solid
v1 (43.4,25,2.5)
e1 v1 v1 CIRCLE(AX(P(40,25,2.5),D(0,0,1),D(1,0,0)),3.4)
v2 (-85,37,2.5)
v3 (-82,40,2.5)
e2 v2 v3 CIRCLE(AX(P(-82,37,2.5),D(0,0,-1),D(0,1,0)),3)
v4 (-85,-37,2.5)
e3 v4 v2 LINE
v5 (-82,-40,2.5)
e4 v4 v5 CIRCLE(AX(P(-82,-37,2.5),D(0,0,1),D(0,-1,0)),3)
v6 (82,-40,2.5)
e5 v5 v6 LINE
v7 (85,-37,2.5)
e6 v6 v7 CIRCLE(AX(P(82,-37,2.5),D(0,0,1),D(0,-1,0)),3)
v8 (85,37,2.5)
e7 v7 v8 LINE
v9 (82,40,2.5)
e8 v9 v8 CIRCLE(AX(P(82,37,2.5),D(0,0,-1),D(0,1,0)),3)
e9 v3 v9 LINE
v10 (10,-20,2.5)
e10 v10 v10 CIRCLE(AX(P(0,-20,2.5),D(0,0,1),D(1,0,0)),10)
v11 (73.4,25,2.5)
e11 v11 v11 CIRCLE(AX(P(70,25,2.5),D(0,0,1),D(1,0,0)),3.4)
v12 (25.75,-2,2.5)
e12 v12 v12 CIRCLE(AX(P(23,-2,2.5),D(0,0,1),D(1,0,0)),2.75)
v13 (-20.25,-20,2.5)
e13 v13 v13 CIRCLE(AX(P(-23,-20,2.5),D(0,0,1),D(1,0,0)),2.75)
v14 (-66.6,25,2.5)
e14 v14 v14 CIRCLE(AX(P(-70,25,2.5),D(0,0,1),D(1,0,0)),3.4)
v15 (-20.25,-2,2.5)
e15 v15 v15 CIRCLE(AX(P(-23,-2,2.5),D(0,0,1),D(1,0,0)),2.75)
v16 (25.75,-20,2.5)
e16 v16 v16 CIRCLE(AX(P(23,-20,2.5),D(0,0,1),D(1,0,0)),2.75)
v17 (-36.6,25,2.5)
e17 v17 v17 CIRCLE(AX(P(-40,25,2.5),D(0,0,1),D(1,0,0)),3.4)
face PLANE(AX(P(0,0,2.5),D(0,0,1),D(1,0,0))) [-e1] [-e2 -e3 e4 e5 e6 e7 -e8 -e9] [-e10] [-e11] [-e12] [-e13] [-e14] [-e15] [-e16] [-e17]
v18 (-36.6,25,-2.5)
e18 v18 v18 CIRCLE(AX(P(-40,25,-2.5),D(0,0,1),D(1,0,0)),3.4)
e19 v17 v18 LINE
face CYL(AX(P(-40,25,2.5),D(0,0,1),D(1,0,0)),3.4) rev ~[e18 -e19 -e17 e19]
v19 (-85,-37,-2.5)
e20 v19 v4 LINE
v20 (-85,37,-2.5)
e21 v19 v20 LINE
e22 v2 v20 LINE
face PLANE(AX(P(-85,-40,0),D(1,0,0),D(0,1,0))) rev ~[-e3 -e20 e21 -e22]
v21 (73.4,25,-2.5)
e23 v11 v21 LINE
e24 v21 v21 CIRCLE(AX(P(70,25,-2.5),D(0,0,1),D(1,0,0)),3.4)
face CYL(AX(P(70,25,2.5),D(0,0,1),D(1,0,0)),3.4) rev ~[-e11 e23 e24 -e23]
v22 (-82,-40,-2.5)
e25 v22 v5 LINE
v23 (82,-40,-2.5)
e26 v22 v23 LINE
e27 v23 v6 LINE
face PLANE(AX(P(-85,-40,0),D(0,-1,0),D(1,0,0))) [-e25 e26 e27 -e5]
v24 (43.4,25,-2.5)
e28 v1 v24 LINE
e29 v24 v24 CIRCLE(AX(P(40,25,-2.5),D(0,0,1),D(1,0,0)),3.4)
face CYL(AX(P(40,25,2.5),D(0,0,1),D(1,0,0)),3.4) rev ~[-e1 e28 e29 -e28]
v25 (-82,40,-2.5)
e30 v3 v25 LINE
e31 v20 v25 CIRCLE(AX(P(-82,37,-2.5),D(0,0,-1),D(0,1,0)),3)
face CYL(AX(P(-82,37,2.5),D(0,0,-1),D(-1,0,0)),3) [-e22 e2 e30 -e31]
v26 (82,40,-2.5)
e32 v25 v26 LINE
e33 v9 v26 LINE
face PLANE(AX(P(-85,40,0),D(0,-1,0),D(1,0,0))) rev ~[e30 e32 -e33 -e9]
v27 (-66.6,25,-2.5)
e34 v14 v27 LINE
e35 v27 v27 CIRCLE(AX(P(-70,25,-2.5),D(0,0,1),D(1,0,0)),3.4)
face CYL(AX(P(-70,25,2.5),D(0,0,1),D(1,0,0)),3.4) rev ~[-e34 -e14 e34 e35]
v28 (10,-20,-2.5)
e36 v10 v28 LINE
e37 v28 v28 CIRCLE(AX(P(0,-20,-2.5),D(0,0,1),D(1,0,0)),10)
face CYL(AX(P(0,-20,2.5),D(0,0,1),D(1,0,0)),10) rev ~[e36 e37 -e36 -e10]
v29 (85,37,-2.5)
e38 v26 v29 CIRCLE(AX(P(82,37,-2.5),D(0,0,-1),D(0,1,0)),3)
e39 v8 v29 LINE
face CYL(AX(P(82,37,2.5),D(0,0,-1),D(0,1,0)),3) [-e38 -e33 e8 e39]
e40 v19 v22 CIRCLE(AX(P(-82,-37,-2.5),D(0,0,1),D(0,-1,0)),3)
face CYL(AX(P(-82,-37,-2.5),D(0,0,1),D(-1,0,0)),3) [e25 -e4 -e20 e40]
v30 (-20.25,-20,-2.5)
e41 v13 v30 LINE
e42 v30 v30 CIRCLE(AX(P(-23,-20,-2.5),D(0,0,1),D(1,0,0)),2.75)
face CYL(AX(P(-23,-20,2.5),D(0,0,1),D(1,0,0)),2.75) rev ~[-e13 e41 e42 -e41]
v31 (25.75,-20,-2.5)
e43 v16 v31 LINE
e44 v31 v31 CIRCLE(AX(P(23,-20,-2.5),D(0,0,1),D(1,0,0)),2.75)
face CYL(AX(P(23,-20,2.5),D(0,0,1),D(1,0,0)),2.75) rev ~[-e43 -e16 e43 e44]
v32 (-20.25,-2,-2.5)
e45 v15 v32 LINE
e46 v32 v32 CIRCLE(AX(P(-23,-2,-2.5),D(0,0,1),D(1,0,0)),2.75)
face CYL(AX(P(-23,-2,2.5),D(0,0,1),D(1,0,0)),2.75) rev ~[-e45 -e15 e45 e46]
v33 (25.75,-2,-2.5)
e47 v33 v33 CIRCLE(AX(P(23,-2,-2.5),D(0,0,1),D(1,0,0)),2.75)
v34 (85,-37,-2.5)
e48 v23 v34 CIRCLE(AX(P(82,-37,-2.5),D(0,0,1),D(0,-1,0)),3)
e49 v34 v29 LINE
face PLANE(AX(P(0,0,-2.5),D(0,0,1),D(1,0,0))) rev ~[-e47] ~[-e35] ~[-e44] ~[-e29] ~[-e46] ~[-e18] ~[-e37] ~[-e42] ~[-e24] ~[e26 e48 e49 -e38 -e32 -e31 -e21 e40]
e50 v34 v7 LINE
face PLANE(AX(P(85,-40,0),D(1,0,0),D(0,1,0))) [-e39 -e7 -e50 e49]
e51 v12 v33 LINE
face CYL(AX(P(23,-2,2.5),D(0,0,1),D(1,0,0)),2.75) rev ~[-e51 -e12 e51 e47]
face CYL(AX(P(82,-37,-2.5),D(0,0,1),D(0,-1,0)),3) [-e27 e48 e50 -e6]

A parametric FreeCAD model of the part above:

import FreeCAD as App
import Part
import Sketcher
Q = App.Units.Quantity


def edges_at(feature, points):
    """Names of the edges that pass closest to the given points."""
    edges = feature.Shape.Edges
    near = lambda p: min(range(len(edges)), key=lambda i: edges[i].distToShape(Part.Vertex(*p))[0])
    return sorted({f"Edge{near(p) + 1}" for p in points})


def add_polygon(sketch, points):
    """Adds a closed chain of lines whose ends are joined by coincident constraints."""
    first, n = sketch.GeometryCount, len(points)
    for a, b in zip(points, points[1:] + points[:1]):
        sketch.addGeometry(Part.LineSegment(App.Vector(*a, 0), App.Vector(*b, 0)), False)
    for i in range(n):
        sketch.addConstraint(Sketcher.Constraint("Coincident", first + i, 2, first + (i + 1) % n, 1))

doc = App.newDocument("Part")
body = doc.addObject("PartDesign::Body", "Body")

# Sketch on XY plane
sketch1 = body.newObject("Sketcher::SketchObject", "Sketch")
sketch1.AttachmentSupport = (doc.getObject("XY_Plane"), [""])
sketch1.MapMode = "FlatFace"
add_polygon(sketch1, [(-85, 40), (-85, -40), (85, -40), (85, 40)])  # lines 0-3
sketch1.addConstraint(Sketcher.Constraint("Vertical", 0))
sketch1.addConstraint(Sketcher.Constraint("Horizontal", 1))
sketch1.addConstraint(Sketcher.Constraint("Vertical", 2))
sketch1.addConstraint(Sketcher.Constraint("Horizontal", 3))
sketch1.addConstraint(Sketcher.Constraint("Symmetric", 0, 2, 2, 2, -1, 1))
sketch1.addConstraint(Sketcher.Constraint("DistanceX", 1, 1, 1, 2, Q("170 mm")))
sketch1.addConstraint(Sketcher.Constraint("DistanceY", 0, 2, 0, 1, Q("80 mm")))
pad1 = body.newObject("PartDesign::Pad", "Pad")
pad1.Profile = sketch1
pad1.Length = 5
pad1.Midplane = True

# Sketch on XY plane
sketch2 = body.newObject("Sketcher::SketchObject", "Sketch001")
sketch2.AttachmentSupport = (doc.getObject("XY_Plane"), [""])
sketch2.MapMode = "FlatFace"
sketch2.AttachmentOffset = App.Placement(App.Vector(0, 0, 2.5), App.Rotation())
sketch2.addGeometry(Part.Circle(App.Vector(40, 25, 0), App.Vector(0, 0, 1), 3.4), False)
sketch2.addGeometry(Part.Circle(App.Vector(70, 25, 0), App.Vector(0, 0, 1), 3.4), False)
sketch2.addGeometry(Part.Circle(App.Vector(-40, 25, 0), App.Vector(0, 0, 1), 3.4), False)
sketch2.addGeometry(Part.Circle(App.Vector(-70, 25, 0), App.Vector(0, 0, 1), 3.4), False)
sketch2.addGeometry(Part.Circle(App.Vector(0, -20, 0), App.Vector(0, 0, 1), 10), False)
sketch2.addGeometry(Part.Circle(App.Vector(-23, -2, 0), App.Vector(0, 0, 1), 2.8), False)
sketch2.addGeometry(Part.Circle(App.Vector(-23, -20, 0), App.Vector(0, 0, 1), 2.8), False)
sketch2.addGeometry(Part.Circle(App.Vector(23, -2, 0), App.Vector(0, 0, 1), 2.8), False)
sketch2.addGeometry(Part.Circle(App.Vector(23, -20, 0), App.Vector(0, 0, 1), 2.8), False)
sketch2.addConstraint(Sketcher.Constraint("Equal", 0, 1))
sketch2.addConstraint(Sketcher.Constraint("Equal", 1, 2))
sketch2.addConstraint(Sketcher.Constraint("Equal", 2, 3))
sketch2.addConstraint(Sketcher.Constraint("Equal", 5, 6))
sketch2.addConstraint(Sketcher.Constraint("Equal", 6, 7))
sketch2.addConstraint(Sketcher.Constraint("Equal", 7, 8))
sketch2.addConstraint(Sketcher.Constraint("Symmetric", 0, 3, 2, 3, -2))
sketch2.addConstraint(Sketcher.Constraint("Symmetric", 1, 3, 3, 3, -2))
sketch2.addConstraint(Sketcher.Constraint("Symmetric", 5, 3, 7, 3, -2))
sketch2.addConstraint(Sketcher.Constraint("Symmetric", 6, 3, 8, 3, -2))
sketch2.addConstraint(Sketcher.Constraint("PointOnObject", 4, 3, -2))
sketch2.addConstraint(Sketcher.Constraint("Horizontal", 0, 3, 1, 3))
sketch2.addConstraint(Sketcher.Constraint("Horizontal", 4, 3, 6, 3))
sketch2.addConstraint(Sketcher.Constraint("Vertical", 5, 3, 6, 3))
sketch2.addConstraint(Sketcher.Constraint("Diameter", 4, Q("20 mm")))
sketch2.addConstraint(Sketcher.Constraint("Diameter", 0, Q("6.8 mm")))
sketch2.addConstraint(Sketcher.Constraint("Diameter", 5, Q("5.5 mm")))
sketch2.addConstraint(Sketcher.Constraint("DistanceX", -1, 1, 0, 3, Q("40 mm")))
sketch2.addConstraint(Sketcher.Constraint("DistanceY", -1, 1, 0, 3, Q("25 mm")))
sketch2.addConstraint(Sketcher.Constraint("DistanceX", -1, 1, 1, 3, Q("70 mm")))
sketch2.addConstraint(Sketcher.Constraint("DistanceY", 4, 3, -1, 1, Q("20 mm")))
sketch2.addConstraint(Sketcher.Constraint("DistanceX", 5, 3, -1, 1, Q("23 mm")))
sketch2.addConstraint(Sketcher.Constraint("DistanceY", 5, 3, -1, 1, Q("2 mm")))
pocket1 = body.newObject("PartDesign::Pocket", "Pocket")
pocket1.Profile = sketch2
pocket1.Length = 5
doc.recompute()

fillet = body.newObject("PartDesign::Fillet", "Fillet")
fillet.Base = (pocket1, edges_at(pocket1, [
    (-85, -40, 0),
    (85, -40, 0),
    (-85, 40, 0),
    (85, 40, 0),
]))
fillet.Radius = 3

doc.recompute()
